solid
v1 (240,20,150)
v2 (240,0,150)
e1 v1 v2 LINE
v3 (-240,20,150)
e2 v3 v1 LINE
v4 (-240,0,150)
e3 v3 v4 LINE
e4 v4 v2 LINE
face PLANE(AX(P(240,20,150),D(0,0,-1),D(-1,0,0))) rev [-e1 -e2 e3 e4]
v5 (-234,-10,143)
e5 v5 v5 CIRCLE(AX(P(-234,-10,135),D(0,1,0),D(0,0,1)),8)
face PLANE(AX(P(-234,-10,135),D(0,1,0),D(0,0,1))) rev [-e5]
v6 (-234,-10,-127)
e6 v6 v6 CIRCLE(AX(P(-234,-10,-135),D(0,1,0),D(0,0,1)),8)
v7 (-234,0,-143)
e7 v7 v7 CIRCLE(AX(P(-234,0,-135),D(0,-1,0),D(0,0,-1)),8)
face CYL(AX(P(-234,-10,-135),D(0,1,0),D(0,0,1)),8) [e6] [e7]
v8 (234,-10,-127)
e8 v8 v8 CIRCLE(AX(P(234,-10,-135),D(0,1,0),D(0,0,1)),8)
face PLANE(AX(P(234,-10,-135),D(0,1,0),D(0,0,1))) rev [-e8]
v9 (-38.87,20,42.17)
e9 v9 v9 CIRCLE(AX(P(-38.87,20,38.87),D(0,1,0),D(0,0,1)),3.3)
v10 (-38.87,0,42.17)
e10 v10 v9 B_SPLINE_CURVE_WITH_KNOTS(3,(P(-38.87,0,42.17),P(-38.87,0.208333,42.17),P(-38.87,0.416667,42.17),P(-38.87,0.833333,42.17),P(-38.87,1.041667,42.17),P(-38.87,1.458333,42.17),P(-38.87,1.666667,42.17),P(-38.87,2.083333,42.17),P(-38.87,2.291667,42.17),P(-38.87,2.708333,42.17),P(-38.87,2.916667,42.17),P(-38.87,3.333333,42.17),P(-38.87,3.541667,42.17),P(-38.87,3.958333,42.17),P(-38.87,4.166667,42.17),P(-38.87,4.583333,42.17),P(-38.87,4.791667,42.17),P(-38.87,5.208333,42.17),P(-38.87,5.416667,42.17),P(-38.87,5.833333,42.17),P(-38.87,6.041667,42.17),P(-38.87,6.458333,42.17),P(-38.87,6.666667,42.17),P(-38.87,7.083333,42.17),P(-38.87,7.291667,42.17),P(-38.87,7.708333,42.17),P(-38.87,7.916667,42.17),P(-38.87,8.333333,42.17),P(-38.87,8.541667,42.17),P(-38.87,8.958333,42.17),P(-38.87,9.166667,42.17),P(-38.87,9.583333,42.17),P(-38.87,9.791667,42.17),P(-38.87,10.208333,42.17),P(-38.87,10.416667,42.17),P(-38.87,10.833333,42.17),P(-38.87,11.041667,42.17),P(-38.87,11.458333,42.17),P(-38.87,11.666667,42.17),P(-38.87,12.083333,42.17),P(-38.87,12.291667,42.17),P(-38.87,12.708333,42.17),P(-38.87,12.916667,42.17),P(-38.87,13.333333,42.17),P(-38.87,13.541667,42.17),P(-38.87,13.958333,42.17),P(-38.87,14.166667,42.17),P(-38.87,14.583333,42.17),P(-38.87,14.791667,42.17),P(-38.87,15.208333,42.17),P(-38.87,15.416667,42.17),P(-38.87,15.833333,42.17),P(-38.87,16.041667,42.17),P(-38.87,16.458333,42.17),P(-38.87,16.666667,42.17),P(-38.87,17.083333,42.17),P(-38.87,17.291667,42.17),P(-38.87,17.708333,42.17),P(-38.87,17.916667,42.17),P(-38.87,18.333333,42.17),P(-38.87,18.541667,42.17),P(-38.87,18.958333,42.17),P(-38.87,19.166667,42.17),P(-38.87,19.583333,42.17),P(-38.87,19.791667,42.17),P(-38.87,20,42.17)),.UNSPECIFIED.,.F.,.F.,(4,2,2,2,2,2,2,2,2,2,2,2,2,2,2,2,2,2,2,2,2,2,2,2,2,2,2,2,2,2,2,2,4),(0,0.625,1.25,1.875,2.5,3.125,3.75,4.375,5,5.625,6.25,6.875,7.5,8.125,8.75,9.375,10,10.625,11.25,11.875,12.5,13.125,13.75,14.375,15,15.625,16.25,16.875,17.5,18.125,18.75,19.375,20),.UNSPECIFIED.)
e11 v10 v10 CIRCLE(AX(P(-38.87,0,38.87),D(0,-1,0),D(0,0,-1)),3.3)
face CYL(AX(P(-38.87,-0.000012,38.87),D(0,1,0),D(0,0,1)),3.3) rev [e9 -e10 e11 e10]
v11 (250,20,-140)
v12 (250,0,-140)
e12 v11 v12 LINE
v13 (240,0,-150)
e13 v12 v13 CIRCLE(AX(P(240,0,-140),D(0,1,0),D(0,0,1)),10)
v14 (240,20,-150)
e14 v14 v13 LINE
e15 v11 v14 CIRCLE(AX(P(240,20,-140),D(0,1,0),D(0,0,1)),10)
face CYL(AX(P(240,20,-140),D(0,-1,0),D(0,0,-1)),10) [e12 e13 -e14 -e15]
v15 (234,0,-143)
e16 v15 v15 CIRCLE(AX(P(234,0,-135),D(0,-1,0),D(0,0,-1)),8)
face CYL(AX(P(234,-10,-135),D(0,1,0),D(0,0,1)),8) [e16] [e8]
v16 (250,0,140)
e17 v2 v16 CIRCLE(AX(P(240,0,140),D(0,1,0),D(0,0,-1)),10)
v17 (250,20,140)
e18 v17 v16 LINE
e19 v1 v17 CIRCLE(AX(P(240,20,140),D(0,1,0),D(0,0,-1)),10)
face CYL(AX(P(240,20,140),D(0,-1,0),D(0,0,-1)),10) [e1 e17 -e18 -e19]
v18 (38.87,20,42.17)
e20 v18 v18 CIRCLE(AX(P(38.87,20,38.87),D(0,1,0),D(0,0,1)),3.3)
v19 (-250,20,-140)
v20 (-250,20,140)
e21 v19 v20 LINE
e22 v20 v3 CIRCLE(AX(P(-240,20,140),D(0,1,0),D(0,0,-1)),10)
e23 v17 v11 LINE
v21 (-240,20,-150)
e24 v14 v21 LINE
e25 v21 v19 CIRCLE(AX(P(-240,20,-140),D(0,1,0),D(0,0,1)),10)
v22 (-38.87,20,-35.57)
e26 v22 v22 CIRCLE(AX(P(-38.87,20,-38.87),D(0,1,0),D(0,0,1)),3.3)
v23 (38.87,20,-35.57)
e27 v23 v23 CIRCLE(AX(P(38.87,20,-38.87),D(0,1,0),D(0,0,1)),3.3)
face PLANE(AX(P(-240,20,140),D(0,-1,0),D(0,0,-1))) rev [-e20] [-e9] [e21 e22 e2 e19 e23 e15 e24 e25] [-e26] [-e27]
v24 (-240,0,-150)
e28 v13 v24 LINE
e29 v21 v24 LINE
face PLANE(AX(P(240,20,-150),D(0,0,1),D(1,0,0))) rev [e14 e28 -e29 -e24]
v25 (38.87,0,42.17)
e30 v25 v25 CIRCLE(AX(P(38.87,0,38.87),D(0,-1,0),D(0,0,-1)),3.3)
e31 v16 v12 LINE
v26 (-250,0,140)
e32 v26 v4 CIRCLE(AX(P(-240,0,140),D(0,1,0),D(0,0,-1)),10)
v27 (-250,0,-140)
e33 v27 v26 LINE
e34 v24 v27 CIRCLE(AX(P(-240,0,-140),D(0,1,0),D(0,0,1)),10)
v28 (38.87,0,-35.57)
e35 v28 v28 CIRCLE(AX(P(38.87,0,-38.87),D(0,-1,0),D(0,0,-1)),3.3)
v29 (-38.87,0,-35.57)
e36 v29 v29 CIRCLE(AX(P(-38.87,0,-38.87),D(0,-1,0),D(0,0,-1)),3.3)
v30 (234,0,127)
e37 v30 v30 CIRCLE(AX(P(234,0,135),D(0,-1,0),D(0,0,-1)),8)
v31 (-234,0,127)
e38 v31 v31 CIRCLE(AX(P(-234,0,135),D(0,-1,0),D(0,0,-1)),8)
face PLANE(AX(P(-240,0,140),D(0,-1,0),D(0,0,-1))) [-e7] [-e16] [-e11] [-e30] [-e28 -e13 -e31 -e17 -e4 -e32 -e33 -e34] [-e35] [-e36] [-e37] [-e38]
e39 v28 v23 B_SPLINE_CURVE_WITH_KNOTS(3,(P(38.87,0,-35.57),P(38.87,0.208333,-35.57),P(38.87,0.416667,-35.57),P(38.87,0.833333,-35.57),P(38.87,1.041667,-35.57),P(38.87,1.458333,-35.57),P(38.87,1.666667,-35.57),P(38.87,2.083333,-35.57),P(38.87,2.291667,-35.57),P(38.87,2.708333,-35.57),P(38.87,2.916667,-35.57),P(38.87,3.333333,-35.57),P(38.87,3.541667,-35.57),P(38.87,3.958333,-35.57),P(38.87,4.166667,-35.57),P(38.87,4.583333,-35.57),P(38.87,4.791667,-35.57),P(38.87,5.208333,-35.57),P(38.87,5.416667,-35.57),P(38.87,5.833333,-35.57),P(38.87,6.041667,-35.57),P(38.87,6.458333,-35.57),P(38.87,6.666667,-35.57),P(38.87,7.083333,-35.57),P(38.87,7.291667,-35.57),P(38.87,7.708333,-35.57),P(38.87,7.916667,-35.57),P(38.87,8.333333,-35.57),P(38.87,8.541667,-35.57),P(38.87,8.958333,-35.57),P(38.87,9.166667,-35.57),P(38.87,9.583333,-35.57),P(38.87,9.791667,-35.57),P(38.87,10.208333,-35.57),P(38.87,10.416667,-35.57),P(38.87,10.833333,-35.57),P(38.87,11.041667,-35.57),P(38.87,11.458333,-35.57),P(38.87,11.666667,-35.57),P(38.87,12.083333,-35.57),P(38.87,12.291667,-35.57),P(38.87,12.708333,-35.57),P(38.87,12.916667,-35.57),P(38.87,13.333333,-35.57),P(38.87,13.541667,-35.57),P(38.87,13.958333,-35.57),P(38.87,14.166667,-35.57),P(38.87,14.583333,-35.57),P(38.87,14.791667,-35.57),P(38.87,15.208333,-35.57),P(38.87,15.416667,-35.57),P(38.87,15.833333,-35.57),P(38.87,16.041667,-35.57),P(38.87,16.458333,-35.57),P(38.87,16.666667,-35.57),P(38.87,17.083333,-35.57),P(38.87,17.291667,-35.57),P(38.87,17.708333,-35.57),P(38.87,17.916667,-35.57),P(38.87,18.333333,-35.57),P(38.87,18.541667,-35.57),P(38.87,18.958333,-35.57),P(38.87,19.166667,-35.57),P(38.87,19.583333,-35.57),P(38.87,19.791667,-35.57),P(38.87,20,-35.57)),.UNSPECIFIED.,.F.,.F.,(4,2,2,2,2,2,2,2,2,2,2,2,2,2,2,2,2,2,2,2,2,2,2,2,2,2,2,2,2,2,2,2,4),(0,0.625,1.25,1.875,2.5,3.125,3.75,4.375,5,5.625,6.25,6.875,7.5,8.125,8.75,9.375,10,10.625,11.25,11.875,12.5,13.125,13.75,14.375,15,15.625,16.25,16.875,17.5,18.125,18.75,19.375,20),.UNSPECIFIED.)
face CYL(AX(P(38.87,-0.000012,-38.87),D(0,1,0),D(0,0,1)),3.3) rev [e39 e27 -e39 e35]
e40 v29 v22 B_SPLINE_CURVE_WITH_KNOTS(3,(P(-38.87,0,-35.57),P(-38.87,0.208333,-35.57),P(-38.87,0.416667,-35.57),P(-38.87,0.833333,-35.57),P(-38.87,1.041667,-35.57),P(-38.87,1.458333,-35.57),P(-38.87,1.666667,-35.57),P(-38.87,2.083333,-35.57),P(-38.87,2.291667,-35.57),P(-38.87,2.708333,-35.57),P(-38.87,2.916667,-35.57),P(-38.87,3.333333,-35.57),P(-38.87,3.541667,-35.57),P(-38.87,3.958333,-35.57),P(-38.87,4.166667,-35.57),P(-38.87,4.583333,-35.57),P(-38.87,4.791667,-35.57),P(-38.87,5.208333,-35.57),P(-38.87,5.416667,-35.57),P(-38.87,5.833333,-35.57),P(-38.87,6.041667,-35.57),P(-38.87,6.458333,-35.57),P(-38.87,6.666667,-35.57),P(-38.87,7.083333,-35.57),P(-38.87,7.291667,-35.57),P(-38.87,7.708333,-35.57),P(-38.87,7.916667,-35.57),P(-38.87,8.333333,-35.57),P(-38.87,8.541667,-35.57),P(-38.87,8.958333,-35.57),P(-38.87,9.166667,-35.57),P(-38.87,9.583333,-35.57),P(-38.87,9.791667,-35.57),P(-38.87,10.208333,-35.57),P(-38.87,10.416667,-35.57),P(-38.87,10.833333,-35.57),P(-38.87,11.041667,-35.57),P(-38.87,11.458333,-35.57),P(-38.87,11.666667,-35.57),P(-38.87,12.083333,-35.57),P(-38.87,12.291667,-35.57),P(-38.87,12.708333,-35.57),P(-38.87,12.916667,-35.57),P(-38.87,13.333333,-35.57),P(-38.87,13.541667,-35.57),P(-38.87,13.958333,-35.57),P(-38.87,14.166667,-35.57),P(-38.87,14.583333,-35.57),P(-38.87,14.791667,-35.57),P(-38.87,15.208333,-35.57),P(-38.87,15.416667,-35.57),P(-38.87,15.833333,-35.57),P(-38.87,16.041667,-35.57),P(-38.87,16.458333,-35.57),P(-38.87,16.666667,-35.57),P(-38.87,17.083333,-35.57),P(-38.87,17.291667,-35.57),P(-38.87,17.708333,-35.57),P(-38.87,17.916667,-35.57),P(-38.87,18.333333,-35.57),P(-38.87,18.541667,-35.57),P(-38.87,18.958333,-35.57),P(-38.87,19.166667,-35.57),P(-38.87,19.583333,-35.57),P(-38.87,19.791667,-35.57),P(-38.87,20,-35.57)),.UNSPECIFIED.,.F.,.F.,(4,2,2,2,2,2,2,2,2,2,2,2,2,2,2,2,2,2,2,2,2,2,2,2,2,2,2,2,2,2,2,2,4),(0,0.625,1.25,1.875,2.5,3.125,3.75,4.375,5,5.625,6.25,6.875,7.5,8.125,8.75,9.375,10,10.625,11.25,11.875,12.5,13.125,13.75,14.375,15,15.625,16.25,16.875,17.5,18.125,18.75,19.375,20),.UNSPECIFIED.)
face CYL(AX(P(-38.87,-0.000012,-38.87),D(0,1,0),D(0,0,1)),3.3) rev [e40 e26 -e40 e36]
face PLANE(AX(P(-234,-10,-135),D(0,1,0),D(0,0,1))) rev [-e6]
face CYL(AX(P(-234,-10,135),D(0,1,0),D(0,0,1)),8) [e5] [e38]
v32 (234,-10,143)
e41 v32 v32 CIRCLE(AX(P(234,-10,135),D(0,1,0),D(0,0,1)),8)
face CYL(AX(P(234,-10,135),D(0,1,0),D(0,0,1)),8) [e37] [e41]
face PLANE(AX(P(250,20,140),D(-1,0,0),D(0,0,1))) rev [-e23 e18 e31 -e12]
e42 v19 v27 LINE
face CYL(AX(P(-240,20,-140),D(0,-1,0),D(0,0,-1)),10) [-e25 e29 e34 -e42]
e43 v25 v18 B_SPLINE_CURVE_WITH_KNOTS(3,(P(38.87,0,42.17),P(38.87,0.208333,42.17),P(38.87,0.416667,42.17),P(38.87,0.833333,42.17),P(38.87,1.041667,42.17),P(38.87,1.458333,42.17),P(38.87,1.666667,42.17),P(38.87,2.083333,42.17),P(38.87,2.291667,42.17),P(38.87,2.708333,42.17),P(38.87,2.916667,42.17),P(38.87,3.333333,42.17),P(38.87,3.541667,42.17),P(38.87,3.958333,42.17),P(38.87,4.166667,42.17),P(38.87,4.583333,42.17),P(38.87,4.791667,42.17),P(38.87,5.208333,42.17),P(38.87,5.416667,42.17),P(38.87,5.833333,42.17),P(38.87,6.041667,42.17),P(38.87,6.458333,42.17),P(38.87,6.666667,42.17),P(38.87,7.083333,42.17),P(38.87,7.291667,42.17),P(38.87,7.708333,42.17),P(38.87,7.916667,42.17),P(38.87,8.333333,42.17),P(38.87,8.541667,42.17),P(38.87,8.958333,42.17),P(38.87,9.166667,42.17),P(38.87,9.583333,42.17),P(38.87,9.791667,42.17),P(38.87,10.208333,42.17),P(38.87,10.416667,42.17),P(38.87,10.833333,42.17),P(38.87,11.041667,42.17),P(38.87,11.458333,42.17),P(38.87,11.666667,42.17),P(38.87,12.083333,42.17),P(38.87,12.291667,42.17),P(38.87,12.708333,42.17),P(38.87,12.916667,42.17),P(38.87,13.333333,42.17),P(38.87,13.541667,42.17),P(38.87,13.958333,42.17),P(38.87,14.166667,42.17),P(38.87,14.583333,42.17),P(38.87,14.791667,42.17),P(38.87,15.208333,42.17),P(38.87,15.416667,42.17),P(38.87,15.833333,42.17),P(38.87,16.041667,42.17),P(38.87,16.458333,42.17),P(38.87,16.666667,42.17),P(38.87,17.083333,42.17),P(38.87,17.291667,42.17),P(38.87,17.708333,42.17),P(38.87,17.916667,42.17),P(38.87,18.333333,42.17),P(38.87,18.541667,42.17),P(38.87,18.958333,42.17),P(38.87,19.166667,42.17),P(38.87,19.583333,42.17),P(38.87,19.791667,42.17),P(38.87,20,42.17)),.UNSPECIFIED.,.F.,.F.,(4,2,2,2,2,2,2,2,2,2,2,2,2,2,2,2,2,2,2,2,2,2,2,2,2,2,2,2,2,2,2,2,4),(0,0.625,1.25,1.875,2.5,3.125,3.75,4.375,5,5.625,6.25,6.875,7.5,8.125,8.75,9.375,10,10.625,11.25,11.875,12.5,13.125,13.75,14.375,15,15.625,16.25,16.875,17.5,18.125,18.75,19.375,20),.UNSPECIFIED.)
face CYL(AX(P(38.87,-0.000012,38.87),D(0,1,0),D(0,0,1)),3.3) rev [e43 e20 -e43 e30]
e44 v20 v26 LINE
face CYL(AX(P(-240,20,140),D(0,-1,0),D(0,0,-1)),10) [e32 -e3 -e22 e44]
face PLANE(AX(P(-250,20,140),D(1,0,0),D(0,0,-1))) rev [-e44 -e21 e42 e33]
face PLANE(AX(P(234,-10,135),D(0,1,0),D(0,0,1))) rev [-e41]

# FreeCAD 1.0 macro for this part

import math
import FreeCAD as App
import Part
import Sketcher
from FreeCAD import Vector
Q = App.Units.Quantity

doc = App.newDocument("Part")
body = doc.addObject("PartDesign::Body", "Body")

# Sketch on XZ plane
sketch1 = body.newObject("Sketcher::SketchObject", "Sketch")
sketch1.AttachmentSupport = (doc.getObject("XZ_Plane"), [""])
sketch1.MapMode = "FlatFace"
sketch1.addGeometry(Part.LineSegment(Vector(-240, 150, 0), Vector(240, 150, 0)), False)
sketch1.addGeometry(Part.ArcOfCircle(Part.Circle(Vector(240, 140, 0), Vector(0, 0, 1), 10), math.radians(0), math.radians(90)), False)
sketch1.addGeometry(Part.LineSegment(Vector(250, 140, 0), Vector(250, -140, 0)), False)
sketch1.addGeometry(Part.ArcOfCircle(Part.Circle(Vector(240, -140, 0), Vector(0, 0, 1), 10), math.radians(-90), math.radians(0)), False)
sketch1.addGeometry(Part.LineSegment(Vector(240, -150, 0), Vector(-240, -150, 0)), False)
sketch1.addGeometry(Part.ArcOfCircle(Part.Circle(Vector(-240, -140, 0), Vector(0, 0, 1), 10), math.radians(180), math.radians(270)), False)
sketch1.addGeometry(Part.LineSegment(Vector(-250, -140, 0), Vector(-250, 140, 0)), False)
sketch1.addGeometry(Part.ArcOfCircle(Part.Circle(Vector(-240, 140, 0), Vector(0, 0, 1), 10), math.radians(90), math.radians(180)), False)
sketch1.addConstraint(Sketcher.Constraint("Tangent", 0, 2, 1, 2))
sketch1.addConstraint(Sketcher.Constraint("Tangent", 1, 1, 2, 1))
sketch1.addConstraint(Sketcher.Constraint("Tangent", 2, 2, 3, 2))
sketch1.addConstraint(Sketcher.Constraint("Tangent", 3, 1, 4, 1))
sketch1.addConstraint(Sketcher.Constraint("Tangent", 4, 2, 5, 2))
sketch1.addConstraint(Sketcher.Constraint("Tangent", 5, 1, 6, 1))
sketch1.addConstraint(Sketcher.Constraint("Tangent", 6, 2, 7, 2))
sketch1.addConstraint(Sketcher.Constraint("Tangent", 7, 1, 0, 1))
sketch1.addConstraint(Sketcher.Constraint("Horizontal", 0))
sketch1.addConstraint(Sketcher.Constraint("Vertical", 2))
sketch1.addConstraint(Sketcher.Constraint("Horizontal", 4))
sketch1.addConstraint(Sketcher.Constraint("Vertical", 6))
sketch1.addConstraint(Sketcher.Constraint("Equal", 1, 3))
sketch1.addConstraint(Sketcher.Constraint("Equal", 3, 5))
sketch1.addConstraint(Sketcher.Constraint("Equal", 5, 7))
sketch1.addConstraint(Sketcher.Constraint("Symmetric", 1, 3, 5, 3, -1, 1))
sketch1.addConstraint(Sketcher.Constraint("Radius", 1, Q("10 mm")))
sketch1.addConstraint(Sketcher.Constraint("DistanceX", 0, 1, 0, 2, Q("480 mm")))
sketch1.addConstraint(Sketcher.Constraint("DistanceY", 2, 2, 2, 1, Q("280 mm")))
pad1 = body.newObject("PartDesign::Pad", "Pad")
pad1.Profile = sketch1
pad1.Length = 20
pad1.Reversed = True

# Sketch on XZ plane
sketch2 = body.newObject("Sketcher::SketchObject", "Sketch001")
sketch2.AttachmentSupport = (doc.getObject("XZ_Plane"), [""])
sketch2.MapMode = "FlatFace"
sketch2.addGeometry(Part.Circle(Vector(-38.9, 38.9, 0), Vector(0, 0, 1), 3.3), False)
sketch2.addGeometry(Part.Circle(Vector(38.9, 38.9, 0), Vector(0, 0, 1), 3.3), False)
sketch2.addGeometry(Part.Circle(Vector(38.9, -38.9, 0), Vector(0, 0, 1), 3.3), False)
sketch2.addGeometry(Part.Circle(Vector(-38.9, -38.9, 0), Vector(0, 0, 1), 3.3), False)
sketch2.addConstraint(Sketcher.Constraint("Equal", 0, 1))
sketch2.addConstraint(Sketcher.Constraint("Equal", 1, 2))
sketch2.addConstraint(Sketcher.Constraint("Equal", 2, 3))
sketch2.addConstraint(Sketcher.Constraint("Symmetric", 0, 3, 2, 3, -1, 1))
sketch2.addConstraint(Sketcher.Constraint("Symmetric", 1, 3, 3, 3, -1, 1))
sketch2.addConstraint(Sketcher.Constraint("Symmetric", 0, 3, 1, 3, -2))
sketch2.addConstraint(Sketcher.Constraint("Diameter", 0, Q("6.6 mm")))
sketch2.addConstraint(Sketcher.Constraint("DistanceX", 0, 3, -1, 1, Q("38.87 mm")))
sketch2.addConstraint(Sketcher.Constraint("DistanceY", -1, 1, 0, 3, Q("38.87 mm")))
pocket1 = body.newObject("PartDesign::Pocket", "Pocket")
pocket1.Profile = sketch2
pocket1.Type = "ThroughAll"
pocket1.Midplane = True

# Sketch on XZ plane
sketch3 = body.newObject("Sketcher::SketchObject", "Sketch002")
sketch3.AttachmentSupport = (doc.getObject("XZ_Plane"), [""])
sketch3.MapMode = "FlatFace"
sketch3.addGeometry(Part.Circle(Vector(-234, -135, 0), Vector(0, 0, 1), 8), False)
sketch3.addGeometry(Part.Circle(Vector(234, -135, 0), Vector(0, 0, 1), 8), False)
sketch3.addGeometry(Part.Circle(Vector(234, 135, 0), Vector(0, 0, 1), 8), False)
sketch3.addGeometry(Part.Circle(Vector(-234, 135, 0), Vector(0, 0, 1), 8), False)
sketch3.addConstraint(Sketcher.Constraint("Equal", 0, 1))
sketch3.addConstraint(Sketcher.Constraint("Equal", 1, 2))
sketch3.addConstraint(Sketcher.Constraint("Equal", 2, 3))
sketch3.addConstraint(Sketcher.Constraint("Symmetric", 0, 3, 2, 3, -1, 1))
sketch3.addConstraint(Sketcher.Constraint("Symmetric", 1, 3, 3, 3, -1, 1))
sketch3.addConstraint(Sketcher.Constraint("Symmetric", 0, 3, 1, 3, -2))
sketch3.addConstraint(Sketcher.Constraint("Diameter", 0, Q("16 mm")))
sketch3.addConstraint(Sketcher.Constraint("DistanceX", 0, 3, -1, 1, Q("234 mm")))
sketch3.addConstraint(Sketcher.Constraint("DistanceY", 0, 3, -1, 1, Q("135 mm")))
pad2 = body.newObject("PartDesign::Pad", "Pad001")
pad2.Profile = sketch3
pad2.Length = 10

doc.recompute()
